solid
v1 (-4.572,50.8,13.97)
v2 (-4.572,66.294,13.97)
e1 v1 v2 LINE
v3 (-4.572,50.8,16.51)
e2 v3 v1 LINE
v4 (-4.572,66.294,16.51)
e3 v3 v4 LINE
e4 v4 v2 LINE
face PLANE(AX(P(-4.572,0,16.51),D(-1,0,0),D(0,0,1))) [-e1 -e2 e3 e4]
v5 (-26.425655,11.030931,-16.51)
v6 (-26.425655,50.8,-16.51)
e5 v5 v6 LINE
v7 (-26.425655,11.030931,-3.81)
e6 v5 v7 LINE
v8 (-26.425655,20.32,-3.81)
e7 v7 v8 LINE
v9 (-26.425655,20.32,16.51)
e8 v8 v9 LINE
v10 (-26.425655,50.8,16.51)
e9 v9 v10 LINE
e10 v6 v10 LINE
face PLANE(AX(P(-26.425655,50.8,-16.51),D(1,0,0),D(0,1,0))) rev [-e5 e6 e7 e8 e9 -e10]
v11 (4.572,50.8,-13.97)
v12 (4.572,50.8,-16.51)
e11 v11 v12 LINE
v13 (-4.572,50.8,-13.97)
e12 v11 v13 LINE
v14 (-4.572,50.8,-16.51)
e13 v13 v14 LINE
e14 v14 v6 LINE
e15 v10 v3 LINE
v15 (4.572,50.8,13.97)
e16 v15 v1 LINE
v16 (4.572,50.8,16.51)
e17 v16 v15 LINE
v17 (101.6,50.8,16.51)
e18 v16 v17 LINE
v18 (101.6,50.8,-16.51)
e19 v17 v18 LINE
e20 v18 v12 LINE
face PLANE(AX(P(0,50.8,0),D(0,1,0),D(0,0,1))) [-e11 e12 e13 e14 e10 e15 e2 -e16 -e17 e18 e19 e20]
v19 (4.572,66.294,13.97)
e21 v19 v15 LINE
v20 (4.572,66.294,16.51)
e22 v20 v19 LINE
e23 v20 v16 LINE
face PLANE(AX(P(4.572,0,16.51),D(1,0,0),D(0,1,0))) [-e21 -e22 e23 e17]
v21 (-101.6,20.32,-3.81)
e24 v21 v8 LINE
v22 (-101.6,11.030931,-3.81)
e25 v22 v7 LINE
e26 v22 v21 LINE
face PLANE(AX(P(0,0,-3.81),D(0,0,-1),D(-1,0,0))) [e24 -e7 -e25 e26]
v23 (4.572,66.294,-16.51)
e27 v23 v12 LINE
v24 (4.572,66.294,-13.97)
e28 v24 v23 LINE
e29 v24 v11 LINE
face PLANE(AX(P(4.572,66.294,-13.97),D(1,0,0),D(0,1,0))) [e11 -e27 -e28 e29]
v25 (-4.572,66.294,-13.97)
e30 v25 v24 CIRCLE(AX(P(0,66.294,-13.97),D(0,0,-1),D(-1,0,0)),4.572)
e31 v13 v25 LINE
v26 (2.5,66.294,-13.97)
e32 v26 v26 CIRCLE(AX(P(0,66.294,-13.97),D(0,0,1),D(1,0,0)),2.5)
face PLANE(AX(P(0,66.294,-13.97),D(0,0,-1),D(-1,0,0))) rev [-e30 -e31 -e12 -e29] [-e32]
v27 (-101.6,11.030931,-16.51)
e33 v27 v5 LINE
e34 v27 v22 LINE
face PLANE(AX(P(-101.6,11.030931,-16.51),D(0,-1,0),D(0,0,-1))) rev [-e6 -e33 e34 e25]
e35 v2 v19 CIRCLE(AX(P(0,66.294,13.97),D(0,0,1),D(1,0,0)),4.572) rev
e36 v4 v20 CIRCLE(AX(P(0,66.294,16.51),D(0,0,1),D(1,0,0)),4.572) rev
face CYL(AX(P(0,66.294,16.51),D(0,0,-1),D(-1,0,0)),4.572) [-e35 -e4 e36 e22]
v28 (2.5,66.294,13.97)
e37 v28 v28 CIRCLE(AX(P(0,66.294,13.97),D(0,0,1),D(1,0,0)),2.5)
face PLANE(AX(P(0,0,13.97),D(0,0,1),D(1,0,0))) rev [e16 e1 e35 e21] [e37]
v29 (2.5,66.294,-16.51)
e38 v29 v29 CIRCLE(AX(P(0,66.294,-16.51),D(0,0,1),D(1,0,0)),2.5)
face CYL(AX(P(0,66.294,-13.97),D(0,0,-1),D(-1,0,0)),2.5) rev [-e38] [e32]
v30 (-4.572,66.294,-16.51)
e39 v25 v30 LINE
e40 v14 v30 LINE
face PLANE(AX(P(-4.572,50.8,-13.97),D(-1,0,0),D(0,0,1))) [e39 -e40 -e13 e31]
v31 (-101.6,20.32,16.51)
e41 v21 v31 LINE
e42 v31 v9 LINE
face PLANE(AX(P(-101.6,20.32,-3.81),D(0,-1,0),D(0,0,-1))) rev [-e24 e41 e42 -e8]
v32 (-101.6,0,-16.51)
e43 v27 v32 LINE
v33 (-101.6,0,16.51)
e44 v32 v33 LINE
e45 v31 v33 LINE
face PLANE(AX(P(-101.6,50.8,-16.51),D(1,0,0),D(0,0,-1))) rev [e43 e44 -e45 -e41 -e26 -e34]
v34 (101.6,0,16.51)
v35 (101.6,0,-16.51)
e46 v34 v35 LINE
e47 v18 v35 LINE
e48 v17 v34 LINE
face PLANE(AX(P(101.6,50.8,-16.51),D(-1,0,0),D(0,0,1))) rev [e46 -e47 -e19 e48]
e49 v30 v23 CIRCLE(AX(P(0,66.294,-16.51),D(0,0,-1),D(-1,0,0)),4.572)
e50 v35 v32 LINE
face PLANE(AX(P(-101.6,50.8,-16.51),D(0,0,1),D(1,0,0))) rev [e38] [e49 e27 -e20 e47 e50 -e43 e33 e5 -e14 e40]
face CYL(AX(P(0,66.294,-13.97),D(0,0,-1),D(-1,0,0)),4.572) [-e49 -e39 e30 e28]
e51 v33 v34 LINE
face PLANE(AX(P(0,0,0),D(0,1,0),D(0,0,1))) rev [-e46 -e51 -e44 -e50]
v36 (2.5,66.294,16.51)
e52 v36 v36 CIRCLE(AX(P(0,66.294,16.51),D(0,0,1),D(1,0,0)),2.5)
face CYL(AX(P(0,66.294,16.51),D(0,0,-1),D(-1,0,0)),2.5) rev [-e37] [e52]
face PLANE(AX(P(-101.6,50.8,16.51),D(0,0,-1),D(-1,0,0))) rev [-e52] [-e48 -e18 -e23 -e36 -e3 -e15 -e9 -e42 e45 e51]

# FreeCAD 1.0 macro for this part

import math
import FreeCAD as App
import Part
import Sketcher
Q = App.Units.Quantity

doc = App.newDocument("Part")
params = doc.addObject("Spreadsheet::Sheet", "Params")
for row, (alias, value) in enumerate([
    ("sketch1_width", "8 in"),
    ("sketch1_height", "1.3 in"),
    ("pad1_length", "2 in"),
    ("pad2_length", "0.8 in"),
    ("sketch4_width", "8 in"),
    ("sketch4_height", "2 in"),
    ("sketch4_radius", "0.18 in"),
    ("sketch4_height2", "1.2 in"),
    ("sketch4_height3", "0.61 in"),
    ("pad3_length", "0.1 in"),
    ("sketch5_radius", "0.18 in"),
    ("sketch5_height", "0.61 in"),
    ("pad4_length", "0.1 in"),
], start=1):
    params.set(f"A{row}", alias)
    params.set(f"B{row}", "=" + value)
    params.setAlias(f"B{row}", alias)

body = doc.addObject("PartDesign::Body", "Body")

sketch1 = doc.addObject("Sketcher::SketchObject", "Sketch")
body.addObject(sketch1)
sketch1.AttachmentSupport = (doc.XZ_Plane, [""])
sketch1.MapMode = "FlatFace"
sketch1.addGeometry([
    Part.LineSegment(App.Vector(-101.6, -16.51, 0), App.Vector(-101.6, 16.51, 0)),
    Part.LineSegment(App.Vector(-101.6, 16.51, 0), App.Vector(101.6, 16.51, 0)),
    Part.LineSegment(App.Vector(101.6, 16.51, 0), App.Vector(101.6, -16.51, 0)),
    Part.LineSegment(App.Vector(101.6, -16.51, 0), App.Vector(-101.6, -16.51, 0)),
], False)
sketch1.addConstraint([
    Sketcher.Constraint("Coincident", 0, 2, 1, 1),
    Sketcher.Constraint("Coincident", 1, 2, 2, 1),
    Sketcher.Constraint("Coincident", 2, 2, 3, 1),
    Sketcher.Constraint("Coincident", 3, 2, 0, 1),
    Sketcher.Constraint("Vertical", 0),
    Sketcher.Constraint("Horizontal", 1),
    Sketcher.Constraint("Vertical", 2),
    Sketcher.Constraint("Horizontal", 3),
    Sketcher.Constraint("Symmetric", 0, 2, 2, 2, -1, 1),
    Sketcher.Constraint("DistanceX", 1, 1, 1, 2, Q("8 in")),
    Sketcher.Constraint("DistanceY", 0, 1, 0, 2, Q("1.3 in")),
])
sketch1.setExpression("Constraints[9]", "Params.sketch1_width")
sketch1.setExpression("Constraints[10]", "Params.sketch1_height")
pad1 = doc.addObject("PartDesign::Pad", "Pad")
body.addObject(pad1)
pad1.Profile = sketch1
pad1.setExpression("Length", "Params.pad1_length")
pad1.Reversed = True

sketch2 = doc.addObject("Sketcher::SketchObject", "Sketch001")
body.addObject(sketch2)
sketch2.AttachmentSupport = (doc.XY_Plane, [""])
sketch2.MapMode = "FlatFace"
sketch2.AttachmentOffset = App.Placement(App.Vector(0, 0, 0.65 * 25.4), App.Rotation())
sketch2.addGeometry([
    Part.LineSegment(App.Vector(-101.6, 50.8, 0), App.Vector(-101.6, 11.030931, 0)),
    Part.LineSegment(App.Vector(-101.6, 11.030931, 0), App.Vector(-26.425655, 11.030931, 0)),
    Part.LineSegment(App.Vector(-26.425655, 11.030931, 0), App.Vector(-26.425655, 50.8, 0)),
    Part.LineSegment(App.Vector(-26.425655, 50.8, 0), App.Vector(-101.6, 50.8, 0)),
], False)
sketch2.addConstraint([
    Sketcher.Constraint("Coincident", 0, 2, 1, 1),
    Sketcher.Constraint("Coincident", 1, 2, 2, 1),
    Sketcher.Constraint("Coincident", 2, 2, 3, 1),
    Sketcher.Constraint("Coincident", 3, 2, 0, 1),
    Sketcher.Constraint("Vertical", 0),
    Sketcher.Constraint("Horizontal", 1),
    Sketcher.Constraint("Vertical", 2),
    Sketcher.Constraint("Horizontal", 3),
    Sketcher.Constraint("DistanceX", 0, 2, -1, 1, Q("4 in")),
    Sketcher.Constraint("DistanceY", -1, 1, 2, 2, Q("2 in")),
    Sketcher.Constraint("DistanceY", 0, 2, 0, 1, 39.769069),
    Sketcher.Constraint("DistanceX", 1, 1, 1, 2, 75.174345),
])
pocket1 = doc.addObject("PartDesign::Pocket", "Pocket")
body.addObject(pocket1)
pocket1.Profile = sketch2
pocket1.Type = "ThroughAll"

sketch3 = doc.addObject("Sketcher::SketchObject", "Sketch002")
body.addObject(sketch3)
sketch3.AttachmentSupport = (doc.XY_Plane, [""])
sketch3.MapMode = "FlatFace"
sketch3.AttachmentOffset = App.Placement(App.Vector(0, 0, 0.65 * 25.4), App.Rotation())
sketch3.addGeometry([
    Part.LineSegment(App.Vector(-101.6, 20.32, 0), App.Vector(-101.6, 11.030931, 0)),
    Part.LineSegment(App.Vector(-101.6, 11.030931, 0), App.Vector(-26.425655, 11.030931, 0)),
    Part.LineSegment(App.Vector(-26.425655, 11.030931, 0), App.Vector(-26.425655, 20.32, 0)),
    Part.LineSegment(App.Vector(-26.425655, 20.32, 0), App.Vector(-101.6, 20.32, 0)),
], False)
sketch3.addConstraint([
    Sketcher.Constraint("Coincident", 0, 2, 1, 1),
    Sketcher.Constraint("Coincident", 1, 2, 2, 1),
    Sketcher.Constraint("Coincident", 2, 2, 3, 1),
    Sketcher.Constraint("Coincident", 3, 2, 0, 1),
    Sketcher.Constraint("Vertical", 0),
    Sketcher.Constraint("Horizontal", 1),
    Sketcher.Constraint("Vertical", 2),
    Sketcher.Constraint("Horizontal", 3),
    Sketcher.Constraint("DistanceX", 0, 2, -1, 1, Q("4 in")),
    Sketcher.Constraint("DistanceY", -1, 1, 2, 2, Q("0.8 in")),
    Sketcher.Constraint("DistanceY", 0, 2, 0, 1, 9.289069),
    Sketcher.Constraint("DistanceX", 1, 1, 1, 2, 75.174345),
])
pad2 = doc.addObject("PartDesign::Pad", "Pad001")
body.addObject(pad2)
pad2.Profile = sketch3
pad2.setExpression("Length", "Params.pad2_length")
pad2.Reversed = True

sketch4 = doc.addObject("Sketcher::SketchObject", "Sketch003")
body.addObject(sketch4)
sketch4.AttachmentSupport = (doc.XY_Plane, [""])
sketch4.MapMode = "FlatFace"
sketch4.AttachmentOffset = App.Placement(App.Vector(0, 0, 0.6 * 25.4), App.Rotation())
sketch4.addGeometry([
    Part.LineSegment(App.Vector(-26.425655, 50.8, 0), App.Vector(-26.425655, 20.32, 0)),
    Part.LineSegment(App.Vector(-26.425655, 20.32, 0), App.Vector(-101.6, 20.32, 0)),
    Part.LineSegment(App.Vector(-101.6, 20.32, 0), App.Vector(-101.6, 0, 0)),
    Part.LineSegment(App.Vector(-101.6, 0, 0), App.Vector(101.6, 0, 0)),
    Part.LineSegment(App.Vector(101.6, 0, 0), App.Vector(101.6, 50.8, 0)),
    Part.LineSegment(App.Vector(101.6, 50.8, 0), App.Vector(4.572, 50.8, 0)),
    Part.LineSegment(App.Vector(4.572, 50.8, 0), App.Vector(4.572, 66.294, 0)),
    Part.ArcOfCircle(Part.Circle(App.Vector(0, 66.294, 0), App.Vector(0, 0, 1), 4.572), math.radians(0), math.radians(180)),
    Part.LineSegment(App.Vector(-4.572, 66.294, 0), App.Vector(-4.572, 50.8, 0)),
    Part.LineSegment(App.Vector(-4.572, 50.8, 0), App.Vector(-26.425655, 50.8, 0)),
    Part.Circle(App.Vector(0, 66.294, 0), App.Vector(0, 0, 1), 2.5),
], False)
sketch4.addConstraint([
    Sketcher.Constraint("Coincident", 0, 2, 1, 1),
    Sketcher.Constraint("Coincident", 1, 2, 2, 1),
    Sketcher.Constraint("Coincident", 2, 2, 3, 1),
    Sketcher.Constraint("Coincident", 3, 2, 4, 1),
    Sketcher.Constraint("Coincident", 4, 2, 5, 1),
    Sketcher.Constraint("Coincident", 5, 2, 6, 1),
    Sketcher.Constraint("Tangent", 6, 2, 7, 1),
    Sketcher.Constraint("Tangent", 7, 2, 8, 1),
    Sketcher.Constraint("Coincident", 8, 2, 9, 1),
    Sketcher.Constraint("Coincident", 9, 2, 0, 1),
    Sketcher.Constraint("Vertical", 0),
    Sketcher.Constraint("Horizontal", 1),
    Sketcher.Constraint("Vertical", 2),
    Sketcher.Constraint("Horizontal", 3),
    Sketcher.Constraint("Vertical", 4),
    Sketcher.Constraint("Horizontal", 5),
    Sketcher.Constraint("Vertical", 6),
    Sketcher.Constraint("Vertical", 8),
    Sketcher.Constraint("Horizontal", 9),
    Sketcher.Constraint("Coincident", 10, 3, 7, 3),
    Sketcher.Constraint("Symmetric", 2, 2, 3, 2, -1, 1),
    Sketcher.Constraint("Symmetric", 5, 2, 8, 2, -2),
    Sketcher.Constraint("DistanceX", 3, 1, 3, 2, Q("8 in")),
    Sketcher.Constraint("DistanceY", 4, 1, 4, 2, Q("2 in")),
    Sketcher.Constraint("Radius", 7, Q("0.18 in")),
    Sketcher.Constraint("DistanceY", 0, 2, 0, 1, Q("1.2 in")),
    Sketcher.Constraint("DistanceY", 6, 1, 6, 2, Q("0.61 in")),
    Sketcher.Constraint("Diameter", 10, 5.0),
    Sketcher.Constraint("DistanceX", 1, 2, 1, 1, 75.174345),
])
sketch4.setExpression("Constraints[22]", "Params.sketch4_width")
sketch4.setExpression("Constraints[23]", "Params.sketch4_height")
sketch4.setExpression("Constraints[24]", "Params.sketch4_radius")
sketch4.setExpression("Constraints[25]", "Params.sketch4_height2")
sketch4.setExpression("Constraints[26]", "Params.sketch4_height3")
pad3 = doc.addObject("PartDesign::Pad", "Pad002")
body.addObject(pad3)
pad3.Profile = sketch4
pad3.setExpression("Length", "Params.pad3_length")
pad3.Midplane = True

sketch5 = doc.addObject("Sketcher::SketchObject", "Sketch004")
body.addObject(sketch5)
sketch5.AttachmentSupport = (doc.XY_Plane, [""])
sketch5.MapMode = "FlatFace"
sketch5.AttachmentOffset = App.Placement(App.Vector(0, 0, -0.6 * 25.4), App.Rotation())
sketch5.addGeometry([
    Part.LineSegment(App.Vector(-4.572, 66.294, 0), App.Vector(-4.572, 50.8, 0)),
    Part.LineSegment(App.Vector(-4.572, 50.8, 0), App.Vector(4.572, 50.8, 0)),
    Part.LineSegment(App.Vector(4.572, 50.8, 0), App.Vector(4.572, 66.294, 0)),
    Part.ArcOfCircle(Part.Circle(App.Vector(0, 66.294, 0), App.Vector(0, 0, 1), 4.572), math.radians(0), math.radians(180)),
    Part.Circle(App.Vector(0, 66.294, 0), App.Vector(0, 0, 1), 2.5),
], False)
sketch5.addConstraint([
    Sketcher.Constraint("Coincident", 0, 2, 1, 1),
    Sketcher.Constraint("Coincident", 1, 2, 2, 1),
    Sketcher.Constraint("Tangent", 2, 2, 3, 1),
    Sketcher.Constraint("Tangent", 3, 2, 0, 1),
    Sketcher.Constraint("Vertical", 0),
    Sketcher.Constraint("Horizontal", 1),
    Sketcher.Constraint("Vertical", 2),
    Sketcher.Constraint("Coincident", 4, 3, 3, 3),
    Sketcher.Constraint("PointOnObject", 3, 3, -2),
    Sketcher.Constraint("Radius", 3, Q("0.18 in")),
    Sketcher.Constraint("DistanceY", -1, 1, 0, 2, Q("2 in")),
    Sketcher.Constraint("DistanceY", 0, 2, 0, 1, Q("0.61 in")),
    Sketcher.Constraint("Diameter", 4, 5.0),
])
sketch5.setExpression("Constraints[9]", "Params.sketch5_radius")
sketch5.setExpression("Constraints[11]", "Params.sketch5_height")
pad4 = doc.addObject("PartDesign::Pad", "Pad003")
body.addObject(pad4)
pad4.Profile = sketch5
pad4.setExpression("Length", "Params.pad4_length")
pad4.Midplane = True

doc.recompute()
